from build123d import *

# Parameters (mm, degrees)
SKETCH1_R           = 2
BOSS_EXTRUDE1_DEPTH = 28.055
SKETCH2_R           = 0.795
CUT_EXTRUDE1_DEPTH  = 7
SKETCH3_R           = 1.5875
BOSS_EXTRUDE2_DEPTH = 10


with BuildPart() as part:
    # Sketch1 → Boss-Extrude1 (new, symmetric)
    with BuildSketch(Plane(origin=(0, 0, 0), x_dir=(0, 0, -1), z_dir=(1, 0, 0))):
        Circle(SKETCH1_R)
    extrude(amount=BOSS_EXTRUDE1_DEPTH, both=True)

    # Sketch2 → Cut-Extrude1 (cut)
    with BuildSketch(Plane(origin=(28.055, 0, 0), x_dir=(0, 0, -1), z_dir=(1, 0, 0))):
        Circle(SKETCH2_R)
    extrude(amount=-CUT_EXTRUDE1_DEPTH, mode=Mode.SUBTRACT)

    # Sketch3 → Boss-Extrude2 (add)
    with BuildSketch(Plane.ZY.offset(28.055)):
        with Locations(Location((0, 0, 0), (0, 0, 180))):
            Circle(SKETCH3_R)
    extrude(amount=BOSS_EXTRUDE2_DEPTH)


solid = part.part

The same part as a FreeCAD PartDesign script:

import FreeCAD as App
import Part
import Sketcher

doc = App.newDocument("Part")
body = doc.addObject("PartDesign::Body", "Body")

sketch1 = body.newObject("Sketcher::SketchObject", "Sketch")
sketch1.AttachmentSupport = (doc.getObject("YZ_Plane"), [""])
sketch1.MapMode = "FlatFace"
sketch1.addGeometry(Part.Circle(App.Vector(0, 0, 0), App.Vector(0, 0, 1), 2), False)
sketch1.addConstraint([
    Sketcher.Constraint("Coincident", 0, 3, -1, 1),
    Sketcher.Constraint("Diameter", 0, 4.0),
])
pad1 = body.newObject("PartDesign::Pad", "Pad")
pad1.Profile = sketch1
pad1.Length = 56.11
pad1.Midplane = True

sketch2 = body.newObject("Sketcher::SketchObject", "Sketch001")
sketch2.AttachmentSupport = (doc.getObject("YZ_Plane"), [""])
sketch2.MapMode = "FlatFace"
sketch2.AttachmentOffset = App.Placement(App.Vector(0, 0, 28.055), App.Rotation())
sketch2.addGeometry(Part.Circle(App.Vector(0, 0, 0), App.Vector(0, 0, 1), 0.8), False)
sketch2.addConstraint([
    Sketcher.Constraint("Coincident", 0, 3, -1, 1),
    Sketcher.Constraint("Diameter", 0, 1.59),
])
pocket1 = body.newObject("PartDesign::Pocket", "Pocket")
pocket1.Profile = sketch2
pocket1.Length = 7

sketch3 = body.newObject("Sketcher::SketchObject", "Sketch002")
sketch3.AttachmentSupport = (doc.getObject("YZ_Plane"), [""])
sketch3.MapMode = "FlatFace"
sketch3.AttachmentOffset = App.Placement(App.Vector(0, 0, -28.055), App.Rotation())
sketch3.addGeometry(Part.Circle(App.Vector(0, 0, 0), App.Vector(0, 0, 1), 1.6), False)
sketch3.addConstraint([
    Sketcher.Constraint("Coincident", 0, 3, -1, 1),
    Sketcher.Constraint("Diameter", 0, 3.175),
])
pad2 = body.newObject("PartDesign::Pad", "Pad001")
pad2.Profile = sketch3
pad2.Length = 10
pad2.Reversed = True

doc.recompute()
